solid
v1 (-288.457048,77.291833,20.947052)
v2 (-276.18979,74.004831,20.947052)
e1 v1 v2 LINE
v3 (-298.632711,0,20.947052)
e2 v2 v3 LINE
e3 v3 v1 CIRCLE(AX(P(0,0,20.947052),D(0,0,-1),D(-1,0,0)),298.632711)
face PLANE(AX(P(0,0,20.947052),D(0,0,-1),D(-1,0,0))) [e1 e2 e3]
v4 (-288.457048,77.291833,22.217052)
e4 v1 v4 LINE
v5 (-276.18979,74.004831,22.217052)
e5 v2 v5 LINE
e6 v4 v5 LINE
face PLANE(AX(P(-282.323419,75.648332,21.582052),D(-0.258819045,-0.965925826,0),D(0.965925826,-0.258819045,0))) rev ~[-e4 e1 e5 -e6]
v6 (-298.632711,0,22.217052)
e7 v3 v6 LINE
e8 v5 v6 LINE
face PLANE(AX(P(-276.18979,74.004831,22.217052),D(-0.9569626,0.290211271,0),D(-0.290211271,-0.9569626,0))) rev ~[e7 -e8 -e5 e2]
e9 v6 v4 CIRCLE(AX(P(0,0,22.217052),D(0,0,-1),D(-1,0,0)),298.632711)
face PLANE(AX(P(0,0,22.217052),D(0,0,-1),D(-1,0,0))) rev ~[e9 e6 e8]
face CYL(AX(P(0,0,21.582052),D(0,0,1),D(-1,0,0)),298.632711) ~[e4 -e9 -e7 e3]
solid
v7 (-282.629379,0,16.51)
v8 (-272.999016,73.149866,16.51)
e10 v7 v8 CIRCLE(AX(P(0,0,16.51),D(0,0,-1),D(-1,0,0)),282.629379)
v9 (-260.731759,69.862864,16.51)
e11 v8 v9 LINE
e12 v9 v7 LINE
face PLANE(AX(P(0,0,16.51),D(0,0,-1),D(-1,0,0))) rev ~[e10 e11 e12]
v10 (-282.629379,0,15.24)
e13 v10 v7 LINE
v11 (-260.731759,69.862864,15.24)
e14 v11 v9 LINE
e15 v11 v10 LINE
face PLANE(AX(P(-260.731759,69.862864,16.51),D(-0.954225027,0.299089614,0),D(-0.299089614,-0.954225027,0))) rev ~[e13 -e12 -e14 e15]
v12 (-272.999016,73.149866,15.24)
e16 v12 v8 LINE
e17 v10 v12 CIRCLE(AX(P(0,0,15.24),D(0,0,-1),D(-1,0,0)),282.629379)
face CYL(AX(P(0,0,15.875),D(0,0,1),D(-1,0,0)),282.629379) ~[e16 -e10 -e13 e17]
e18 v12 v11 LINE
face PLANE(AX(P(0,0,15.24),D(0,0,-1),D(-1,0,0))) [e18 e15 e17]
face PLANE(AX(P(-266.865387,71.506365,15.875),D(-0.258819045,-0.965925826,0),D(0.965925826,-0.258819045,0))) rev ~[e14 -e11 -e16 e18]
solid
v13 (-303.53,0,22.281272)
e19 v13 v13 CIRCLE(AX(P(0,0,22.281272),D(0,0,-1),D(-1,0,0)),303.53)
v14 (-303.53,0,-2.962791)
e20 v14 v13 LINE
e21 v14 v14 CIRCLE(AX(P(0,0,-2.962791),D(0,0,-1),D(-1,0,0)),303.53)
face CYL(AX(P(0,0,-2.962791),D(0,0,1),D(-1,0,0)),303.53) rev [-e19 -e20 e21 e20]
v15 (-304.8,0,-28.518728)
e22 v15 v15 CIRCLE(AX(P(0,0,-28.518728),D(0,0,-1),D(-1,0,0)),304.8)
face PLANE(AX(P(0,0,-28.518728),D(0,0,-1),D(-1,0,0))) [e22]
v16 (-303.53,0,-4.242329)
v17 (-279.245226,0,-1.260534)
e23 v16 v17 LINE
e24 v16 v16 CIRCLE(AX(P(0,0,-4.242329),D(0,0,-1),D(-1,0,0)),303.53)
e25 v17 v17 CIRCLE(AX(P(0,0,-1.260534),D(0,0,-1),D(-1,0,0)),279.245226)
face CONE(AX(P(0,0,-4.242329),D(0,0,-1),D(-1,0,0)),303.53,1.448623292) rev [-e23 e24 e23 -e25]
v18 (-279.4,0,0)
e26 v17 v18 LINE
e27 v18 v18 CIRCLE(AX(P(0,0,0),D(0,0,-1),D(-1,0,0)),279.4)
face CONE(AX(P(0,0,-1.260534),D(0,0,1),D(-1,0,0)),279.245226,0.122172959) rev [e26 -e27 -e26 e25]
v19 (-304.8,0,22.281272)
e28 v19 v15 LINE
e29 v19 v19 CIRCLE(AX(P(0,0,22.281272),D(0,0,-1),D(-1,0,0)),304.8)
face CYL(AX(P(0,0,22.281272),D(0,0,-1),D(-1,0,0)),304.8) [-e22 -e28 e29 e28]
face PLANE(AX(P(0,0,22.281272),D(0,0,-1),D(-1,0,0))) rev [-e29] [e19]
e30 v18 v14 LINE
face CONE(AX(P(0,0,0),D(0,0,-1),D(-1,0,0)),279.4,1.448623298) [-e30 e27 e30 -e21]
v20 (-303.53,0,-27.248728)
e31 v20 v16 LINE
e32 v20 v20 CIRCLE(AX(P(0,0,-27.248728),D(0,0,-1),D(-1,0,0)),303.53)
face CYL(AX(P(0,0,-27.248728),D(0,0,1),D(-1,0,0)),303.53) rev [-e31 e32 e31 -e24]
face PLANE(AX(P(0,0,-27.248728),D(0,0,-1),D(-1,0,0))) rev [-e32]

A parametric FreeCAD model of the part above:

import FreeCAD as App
import Part
import Sketcher
Q = App.Units.Quantity


def add_polygon(sketch, points):
    """Adds a closed chain of lines whose ends are joined by coincident constraints."""
    first, n = sketch.GeometryCount, len(points)
    for a, b in zip(points, points[1:] + points[:1]):
        sketch.addGeometry(Part.LineSegment(App.Vector(*a, 0), App.Vector(*b, 0)), False)
    for i in range(n):
        sketch.addConstraint(Sketcher.Constraint("Coincident", first + i, 2, first + (i + 1) % n, 1))

doc = App.newDocument("Part")
params = doc.addObject("Spreadsheet::Sheet", "Params")
for row, (alias, value) in enumerate([
    ("sketch1_width", "12 in"),
    ("sketch1_height", "2 in"),
    ("sketch1_width2", "11.95 in"),
    ("sketch1_length", "0.05 in"),
    ("revolution_angle", "360 deg"),
    ("sketch2_width", "0.5 in"),
    ("sketch2_height", "0.05 in"),
    ("revolution2_angle", "15 deg"),
    ("sketch3_width", "0.5 in"),
    ("sketch4_width", "0.5 in"),
], start=1):
    params.set(f"A{row}", alias)
    params.set(f"B{row}", "=" + value)
    params.setAlias(f"B{row}", alias)

body = doc.addObject("PartDesign::Body", "Body")

# Sketch on XZ plane
sketch1 = body.newObject("Sketcher::SketchObject", "Sketch")
sketch1.AttachmentSupport = (doc.getObject("XZ_Plane"), [""])
sketch1.MapMode = "FlatFace"
add_polygon(sketch1, [(-304.8, 22.3), (-304.8, -28.5), (0, -28.5), (0, -27.2), (-303.5, -27.2), (-303.5, -4.2), (-279.2, -1.3), (-279.4, 0), (-303.5, -3), (-303.5, 22.3)])  # lines 0-9
sketch1.addConstraint([
    Sketcher.Constraint("Vertical", 0),
    Sketcher.Constraint("Horizontal", 1),
    Sketcher.Constraint("Vertical", 2),
    Sketcher.Constraint("Horizontal", 3),
    Sketcher.Constraint("Vertical", 4),
    Sketcher.Constraint("Vertical", 8),
    Sketcher.Constraint("Horizontal", 9),
    Sketcher.Constraint("PointOnObject", 1, 2, -2),
    Sketcher.Constraint("PointOnObject", 6, 2, -1),
    Sketcher.Constraint("Perpendicular", 5, 6),
    Sketcher.Constraint("Perpendicular", 6, 7),
    Sketcher.Constraint("Vertical", 4, 2, 7, 2),
    Sketcher.Constraint("Equal", 9, 2),
    Sketcher.Constraint("DistanceX", 1, 1, 1, 2, Q("12 in")),
    Sketcher.Constraint("DistanceY", 0, 2, 0, 1, Q("2 in")),
    Sketcher.Constraint("DistanceX", 6, 2, -1, 1, Q("11 in")),
    Sketcher.Constraint("Angle", 5, Q("6.999999 deg")),
    Sketcher.Constraint("DistanceX", 3, 2, 3, 1, Q("11.95 in")),
    Sketcher.Constraint("Distance", 6, Q("0.05 in")),
    Sketcher.Constraint("DistanceY", 4, 1, 4, 2, 23.006399),
])
sketch1.setExpression("Constraints[23]", "Params.sketch1_width")
sketch1.setExpression("Constraints[24]", "Params.sketch1_height")
sketch1.setExpression("Constraints[27]", "Params.sketch1_width2")
sketch1.setExpression("Constraints[28]", "Params.sketch1_length")
revolution = body.newObject("PartDesign::Revolution", "Revolution")
revolution.Profile = sketch1
revolution.ReferenceAxis = (sketch1, ["V_Axis"])
revolution.setExpression("Angle", "Params.revolution_angle")
body2 = doc.addObject("PartDesign::Body", "Body001")
body2.AllowCompound = True

# Sketch on XZ plane
sketch2 = body2.newObject("Sketcher::SketchObject", "Sketch001")
sketch2.AttachmentSupport = (doc.getObject("XZ_Plane001"), [""])
sketch2.MapMode = "FlatFace"
add_polygon(sketch2, [(-282.6, 16.5), (-282.6, 15.2), (-269.9, 15.2), (-269.9, 16.5)])  # lines 0-3
add_polygon(sketch2, [(-298.6, 22.2), (-298.6, 20.9), (-285.9, 20.9), (-285.9, 22.2)])  # lines 4-7
sketch2.addConstraint([
    Sketcher.Constraint("Vertical", 0),
    Sketcher.Constraint("Horizontal", 1),
    Sketcher.Constraint("Vertical", 2),
    Sketcher.Constraint("Horizontal", 3),
    Sketcher.Constraint("Vertical", 4),
    Sketcher.Constraint("Horizontal", 5),
    Sketcher.Constraint("Vertical", 6),
    Sketcher.Constraint("Horizontal", 7),
    Sketcher.Constraint("Equal", 3, 5),
    Sketcher.Constraint("Equal", 2, 4),
    Sketcher.Constraint("DistanceX", 1, 1, 1, 2, Q("0.5 in")),
    Sketcher.Constraint("DistanceY", 0, 2, 0, 1, Q("0.05 in")),
    Sketcher.Constraint("DistanceY", -1, 1, 0, 2, Q("0.6 in")),
    Sketcher.Constraint("DistanceX", 0, 2, -1, 1, 282.629379),
    Sketcher.Constraint("DistanceX", 4, 2, -1, 1, 298.632711),
    Sketcher.Constraint("DistanceY", -1, 1, 4, 2, 20.947052),
])
sketch2.setExpression("Constraints[18]", "Params.sketch2_width")
sketch2.setExpression("Constraints[19]", "Params.sketch2_height")
revolution2 = body2.newObject("PartDesign::Revolution", "Revolution001")
revolution2.Profile = sketch2
revolution2.ReferenceAxis = (sketch2, ["V_Axis"])
revolution2.setExpression("Angle", "Params.revolution2_angle")
revolution2.Reversed = True

# Sketch on XY plane
sketch3 = body2.newObject("Sketcher::SketchObject", "Sketch002")
sketch3.AttachmentSupport = (doc.getObject("XY_Plane001"), [""])
sketch3.MapMode = "FlatFace"
sketch3.AttachmentOffset = App.Placement(App.Vector(0, 0, 22.217052), App.Rotation())
add_polygon(sketch3, [(-276, 74), (-299, 0), (-286, 0)])  # lines 0-2
sketch3.addConstraint([
    Sketcher.Constraint("Horizontal", 1),
    Sketcher.Constraint("PointOnObject", 0, 2, -1),
    Sketcher.Constraint("DistanceX", 1, 1, 1, 2, Q("0.5 in")),
    Sketcher.Constraint("Angle", 2, Q("82.5 deg")),
    Sketcher.Constraint("DistanceX", 0, 2, -1, 1, 298.632711),
    Sketcher.Constraint("DistanceX", 2, 2, -1, 1, 276.18979),
])
sketch3.setExpression("Constraints[5]", "Params.sketch3_width")
pocket1 = body2.newObject("PartDesign::Pocket", "Pocket")
pocket1.Profile = sketch3
pocket1.Type = "ThroughAll"

# Sketch on XY plane
sketch4 = body2.newObject("Sketcher::SketchObject", "Sketch003")
sketch4.AttachmentSupport = (doc.getObject("XY_Plane001"), [""])
sketch4.MapMode = "FlatFace"
sketch4.AttachmentOffset = App.Placement(App.Vector(0, 0, 0.65 * 25.4), App.Rotation())
add_polygon(sketch4, [(-261, 70), (-283, 0), (-270, 0)])  # lines 0-2
sketch4.addConstraint([
    Sketcher.Constraint("Horizontal", 1),
    Sketcher.Constraint("PointOnObject", 0, 2, -1),
    Sketcher.Constraint("DistanceX", 1, 1, 1, 2, Q("0.5 in")),
    Sketcher.Constraint("Angle", 2, Q("82.5 deg")),
    Sketcher.Constraint("DistanceX", 0, 2, -1, 1, 282.629379),
    Sketcher.Constraint("DistanceX", 2, 2, -1, 1, 260.731759),
])
sketch4.setExpression("Constraints[5]", "Params.sketch4_width")
pocket2 = body2.newObject("PartDesign::Pocket", "Pocket001")
pocket2.Profile = sketch4
pocket2.Type = "ThroughAll"

doc.recompute()
